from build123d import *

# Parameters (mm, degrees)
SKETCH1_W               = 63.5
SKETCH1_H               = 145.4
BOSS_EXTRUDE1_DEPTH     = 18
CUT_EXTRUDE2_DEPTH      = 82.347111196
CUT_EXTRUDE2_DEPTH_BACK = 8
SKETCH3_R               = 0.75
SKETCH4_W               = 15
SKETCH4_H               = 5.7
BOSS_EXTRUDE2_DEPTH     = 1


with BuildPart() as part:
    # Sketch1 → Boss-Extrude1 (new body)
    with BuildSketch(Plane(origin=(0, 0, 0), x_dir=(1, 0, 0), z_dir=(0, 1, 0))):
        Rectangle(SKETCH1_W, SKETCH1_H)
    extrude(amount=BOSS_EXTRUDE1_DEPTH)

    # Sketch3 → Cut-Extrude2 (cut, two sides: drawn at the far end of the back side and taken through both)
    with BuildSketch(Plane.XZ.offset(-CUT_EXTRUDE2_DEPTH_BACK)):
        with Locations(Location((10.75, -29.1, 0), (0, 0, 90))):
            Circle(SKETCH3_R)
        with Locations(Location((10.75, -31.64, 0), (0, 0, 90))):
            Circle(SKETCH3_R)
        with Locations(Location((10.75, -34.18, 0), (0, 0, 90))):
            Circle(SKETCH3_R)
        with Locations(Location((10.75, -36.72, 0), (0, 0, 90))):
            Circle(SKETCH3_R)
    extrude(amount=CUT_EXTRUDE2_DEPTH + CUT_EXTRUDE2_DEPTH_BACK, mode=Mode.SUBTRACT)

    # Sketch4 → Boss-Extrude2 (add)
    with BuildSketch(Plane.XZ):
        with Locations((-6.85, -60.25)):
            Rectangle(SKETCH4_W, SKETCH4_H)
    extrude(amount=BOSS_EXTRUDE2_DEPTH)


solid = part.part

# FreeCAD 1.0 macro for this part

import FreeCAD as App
import Part
import Sketcher
from FreeCAD import Vector
Q = App.Units.Quantity

doc = App.newDocument("Part")
params = doc.addObject("Spreadsheet::Sheet", "Params")
for row, (alias, value) in enumerate([
    ("sketch1_width", "63.5 mm"),
    ("sketch1_height", "145.4 mm"),
    ("pad1_length", "18 mm"),
    ("sketch2_diameter", "1.5 mm"),
    ("pocket1_length", "82.347111 mm"),
    ("pocket1_length2", "8 mm"),
    ("sketch3_width", "15 mm"),
    ("sketch3_height", "5.7 mm"),
    ("pad2_length", "1 mm"),
], start=1):
    params.set(f"A{row}", alias)
    params.set(f"B{row}", "=" + value)
    params.setAlias(f"B{row}", alias)

body = doc.addObject("PartDesign::Body", "Body")

# Sketch on XZ plane
sketch1 = doc.addObject("Sketcher::SketchObject", "Sketch")
body.addObject(sketch1)
sketch1.AttachmentSupport = (doc.XZ_Plane, [""])
sketch1.MapMode = "FlatFace"
sketch1.addGeometry([
    Part.LineSegment(Vector(-31.75, -72.7, 0), Vector(-31.75, 72.7, 0)),
    Part.LineSegment(Vector(-31.75, 72.7, 0), Vector(31.75, 72.7, 0)),
    Part.LineSegment(Vector(31.75, 72.7, 0), Vector(31.75, -72.7, 0)),
    Part.LineSegment(Vector(31.75, -72.7, 0), Vector(-31.75, -72.7, 0)),
], False)
sketch1.addConstraint([
    Sketcher.Constraint("Coincident", 0, 2, 1, 1),
    Sketcher.Constraint("Coincident", 1, 2, 2, 1),
    Sketcher.Constraint("Coincident", 2, 2, 3, 1),
    Sketcher.Constraint("Coincident", 3, 2, 0, 1),
    Sketcher.Constraint("Vertical", 0),
    Sketcher.Constraint("Horizontal", 1),
    Sketcher.Constraint("Vertical", 2),
    Sketcher.Constraint("Horizontal", 3),
    Sketcher.Constraint("Symmetric", 0, 2, 2, 2, -1, 1),
    Sketcher.Constraint("DistanceX", 1, 1, 1, 2, Q("63.5 mm")),
    Sketcher.Constraint("DistanceY", 0, 1, 0, 2, Q("145.4 mm")),
])
sketch1.setExpression("Constraints[9]", "Params.sketch1_width")
sketch1.setExpression("Constraints[10]", "Params.sketch1_height")
pad1 = doc.addObject("PartDesign::Pad", "Pad")
body.addObject(pad1)
pad1.Profile = sketch1
pad1.setExpression("Length", "Params.pad1_length")
pad1.Reversed = True

# Sketch on XZ plane
sketch2 = doc.addObject("Sketcher::SketchObject", "Sketch001")
body.addObject(sketch2)
sketch2.AttachmentSupport = (doc.XZ_Plane, [""])
sketch2.MapMode = "FlatFace"
sketch2.addGeometry([
    Part.Circle(Vector(10.75, -29.1, 0), Vector(0, 0, 1), 0.75),
    Part.Circle(Vector(10.75, -31.64, 0), Vector(0, 0, 1), 0.75),
    Part.Circle(Vector(10.75, -34.18, 0), Vector(0, 0, 1), 0.75),
    Part.Circle(Vector(10.75, -36.72, 0), Vector(0, 0, 1), 0.75),
], False)
sketch2.addConstraint([
    Sketcher.Constraint("Equal", 0, 1),
    Sketcher.Constraint("Equal", 1, 2),
    Sketcher.Constraint("Equal", 2, 3),
    Sketcher.Constraint("Vertical", 0, 3, 1, 3),
    Sketcher.Constraint("Vertical", 1, 3, 2, 3),
    Sketcher.Constraint("Vertical", 2, 3, 3, 3),
    Sketcher.Constraint("Diameter", 0, Q("1.5 mm")),
    Sketcher.Constraint("DistanceY", 0, 3, -1, 1, Q("29.1 mm")),
    Sketcher.Constraint("DistanceX", -1, 1, 0, 3, Q("10.75 mm")),
    Sketcher.Constraint("DistanceY", 1, 3, -1, 1, Q("31.64 mm")),
    Sketcher.Constraint("DistanceY", 2, 3, -1, 1, Q("34.18 mm")),
    Sketcher.Constraint("DistanceY", 3, 3, -1, 1, Q("36.72 mm")),
])
sketch2.setExpression("Constraints[6]", "Params.sketch2_diameter")
pocket1 = doc.addObject("PartDesign::Pocket", "Pocket")
body.addObject(pocket1)
pocket1.Profile = sketch2
pocket1.Type = "TwoLengths"
pocket1.setExpression("Length", "Params.pocket1_length")
pocket1.setExpression("Length2", "Params.pocket1_length2")
pocket1.Reversed = True

# Sketch on XZ plane
sketch3 = doc.addObject("Sketcher::SketchObject", "Sketch002")
body.addObject(sketch3)
sketch3.AttachmentSupport = (doc.XZ_Plane, [""])
sketch3.MapMode = "FlatFace"
sketch3.addGeometry([
    Part.LineSegment(Vector(-14.35, -57.4, 0), Vector(-14.35, -63.1, 0)),
    Part.LineSegment(Vector(-14.35, -63.1, 0), Vector(0.65, -63.1, 0)),
    Part.LineSegment(Vector(0.65, -63.1, 0), Vector(0.65, -57.4, 0)),
    Part.LineSegment(Vector(0.65, -57.4, 0), Vector(-14.35, -57.4, 0)),
], False)
sketch3.addConstraint([
    Sketcher.Constraint("Coincident", 0, 2, 1, 1),
    Sketcher.Constraint("Coincident", 1, 2, 2, 1),
    Sketcher.Constraint("Coincident", 2, 2, 3, 1),
    Sketcher.Constraint("Coincident", 3, 2, 0, 1),
    Sketcher.Constraint("Vertical", 0),
    Sketcher.Constraint("Horizontal", 1),
    Sketcher.Constraint("Vertical", 2),
    Sketcher.Constraint("Horizontal", 3),
    Sketcher.Constraint("DistanceX", 1, 1, 1, 2, Q("15 mm")),
    Sketcher.Constraint("DistanceY", 0, 2, 0, 1, Q("5.7 mm")),
    Sketcher.Constraint("DistanceY", 0, 2, -1, 1, Q("63.1 mm")),
    Sketcher.Constraint("DistanceX", 0, 2, -1, 1, Q("14.35 mm")),
])
sketch3.setExpression("Constraints[8]", "Params.sketch3_width")
sketch3.setExpression("Constraints[9]", "Params.sketch3_height")
pad2 = doc.addObject("PartDesign::Pad", "Pad001")
body.addObject(pad2)
pad2.Profile = sketch3
pad2.setExpression("Length", "Params.pad2_length")

doc.recompute()
